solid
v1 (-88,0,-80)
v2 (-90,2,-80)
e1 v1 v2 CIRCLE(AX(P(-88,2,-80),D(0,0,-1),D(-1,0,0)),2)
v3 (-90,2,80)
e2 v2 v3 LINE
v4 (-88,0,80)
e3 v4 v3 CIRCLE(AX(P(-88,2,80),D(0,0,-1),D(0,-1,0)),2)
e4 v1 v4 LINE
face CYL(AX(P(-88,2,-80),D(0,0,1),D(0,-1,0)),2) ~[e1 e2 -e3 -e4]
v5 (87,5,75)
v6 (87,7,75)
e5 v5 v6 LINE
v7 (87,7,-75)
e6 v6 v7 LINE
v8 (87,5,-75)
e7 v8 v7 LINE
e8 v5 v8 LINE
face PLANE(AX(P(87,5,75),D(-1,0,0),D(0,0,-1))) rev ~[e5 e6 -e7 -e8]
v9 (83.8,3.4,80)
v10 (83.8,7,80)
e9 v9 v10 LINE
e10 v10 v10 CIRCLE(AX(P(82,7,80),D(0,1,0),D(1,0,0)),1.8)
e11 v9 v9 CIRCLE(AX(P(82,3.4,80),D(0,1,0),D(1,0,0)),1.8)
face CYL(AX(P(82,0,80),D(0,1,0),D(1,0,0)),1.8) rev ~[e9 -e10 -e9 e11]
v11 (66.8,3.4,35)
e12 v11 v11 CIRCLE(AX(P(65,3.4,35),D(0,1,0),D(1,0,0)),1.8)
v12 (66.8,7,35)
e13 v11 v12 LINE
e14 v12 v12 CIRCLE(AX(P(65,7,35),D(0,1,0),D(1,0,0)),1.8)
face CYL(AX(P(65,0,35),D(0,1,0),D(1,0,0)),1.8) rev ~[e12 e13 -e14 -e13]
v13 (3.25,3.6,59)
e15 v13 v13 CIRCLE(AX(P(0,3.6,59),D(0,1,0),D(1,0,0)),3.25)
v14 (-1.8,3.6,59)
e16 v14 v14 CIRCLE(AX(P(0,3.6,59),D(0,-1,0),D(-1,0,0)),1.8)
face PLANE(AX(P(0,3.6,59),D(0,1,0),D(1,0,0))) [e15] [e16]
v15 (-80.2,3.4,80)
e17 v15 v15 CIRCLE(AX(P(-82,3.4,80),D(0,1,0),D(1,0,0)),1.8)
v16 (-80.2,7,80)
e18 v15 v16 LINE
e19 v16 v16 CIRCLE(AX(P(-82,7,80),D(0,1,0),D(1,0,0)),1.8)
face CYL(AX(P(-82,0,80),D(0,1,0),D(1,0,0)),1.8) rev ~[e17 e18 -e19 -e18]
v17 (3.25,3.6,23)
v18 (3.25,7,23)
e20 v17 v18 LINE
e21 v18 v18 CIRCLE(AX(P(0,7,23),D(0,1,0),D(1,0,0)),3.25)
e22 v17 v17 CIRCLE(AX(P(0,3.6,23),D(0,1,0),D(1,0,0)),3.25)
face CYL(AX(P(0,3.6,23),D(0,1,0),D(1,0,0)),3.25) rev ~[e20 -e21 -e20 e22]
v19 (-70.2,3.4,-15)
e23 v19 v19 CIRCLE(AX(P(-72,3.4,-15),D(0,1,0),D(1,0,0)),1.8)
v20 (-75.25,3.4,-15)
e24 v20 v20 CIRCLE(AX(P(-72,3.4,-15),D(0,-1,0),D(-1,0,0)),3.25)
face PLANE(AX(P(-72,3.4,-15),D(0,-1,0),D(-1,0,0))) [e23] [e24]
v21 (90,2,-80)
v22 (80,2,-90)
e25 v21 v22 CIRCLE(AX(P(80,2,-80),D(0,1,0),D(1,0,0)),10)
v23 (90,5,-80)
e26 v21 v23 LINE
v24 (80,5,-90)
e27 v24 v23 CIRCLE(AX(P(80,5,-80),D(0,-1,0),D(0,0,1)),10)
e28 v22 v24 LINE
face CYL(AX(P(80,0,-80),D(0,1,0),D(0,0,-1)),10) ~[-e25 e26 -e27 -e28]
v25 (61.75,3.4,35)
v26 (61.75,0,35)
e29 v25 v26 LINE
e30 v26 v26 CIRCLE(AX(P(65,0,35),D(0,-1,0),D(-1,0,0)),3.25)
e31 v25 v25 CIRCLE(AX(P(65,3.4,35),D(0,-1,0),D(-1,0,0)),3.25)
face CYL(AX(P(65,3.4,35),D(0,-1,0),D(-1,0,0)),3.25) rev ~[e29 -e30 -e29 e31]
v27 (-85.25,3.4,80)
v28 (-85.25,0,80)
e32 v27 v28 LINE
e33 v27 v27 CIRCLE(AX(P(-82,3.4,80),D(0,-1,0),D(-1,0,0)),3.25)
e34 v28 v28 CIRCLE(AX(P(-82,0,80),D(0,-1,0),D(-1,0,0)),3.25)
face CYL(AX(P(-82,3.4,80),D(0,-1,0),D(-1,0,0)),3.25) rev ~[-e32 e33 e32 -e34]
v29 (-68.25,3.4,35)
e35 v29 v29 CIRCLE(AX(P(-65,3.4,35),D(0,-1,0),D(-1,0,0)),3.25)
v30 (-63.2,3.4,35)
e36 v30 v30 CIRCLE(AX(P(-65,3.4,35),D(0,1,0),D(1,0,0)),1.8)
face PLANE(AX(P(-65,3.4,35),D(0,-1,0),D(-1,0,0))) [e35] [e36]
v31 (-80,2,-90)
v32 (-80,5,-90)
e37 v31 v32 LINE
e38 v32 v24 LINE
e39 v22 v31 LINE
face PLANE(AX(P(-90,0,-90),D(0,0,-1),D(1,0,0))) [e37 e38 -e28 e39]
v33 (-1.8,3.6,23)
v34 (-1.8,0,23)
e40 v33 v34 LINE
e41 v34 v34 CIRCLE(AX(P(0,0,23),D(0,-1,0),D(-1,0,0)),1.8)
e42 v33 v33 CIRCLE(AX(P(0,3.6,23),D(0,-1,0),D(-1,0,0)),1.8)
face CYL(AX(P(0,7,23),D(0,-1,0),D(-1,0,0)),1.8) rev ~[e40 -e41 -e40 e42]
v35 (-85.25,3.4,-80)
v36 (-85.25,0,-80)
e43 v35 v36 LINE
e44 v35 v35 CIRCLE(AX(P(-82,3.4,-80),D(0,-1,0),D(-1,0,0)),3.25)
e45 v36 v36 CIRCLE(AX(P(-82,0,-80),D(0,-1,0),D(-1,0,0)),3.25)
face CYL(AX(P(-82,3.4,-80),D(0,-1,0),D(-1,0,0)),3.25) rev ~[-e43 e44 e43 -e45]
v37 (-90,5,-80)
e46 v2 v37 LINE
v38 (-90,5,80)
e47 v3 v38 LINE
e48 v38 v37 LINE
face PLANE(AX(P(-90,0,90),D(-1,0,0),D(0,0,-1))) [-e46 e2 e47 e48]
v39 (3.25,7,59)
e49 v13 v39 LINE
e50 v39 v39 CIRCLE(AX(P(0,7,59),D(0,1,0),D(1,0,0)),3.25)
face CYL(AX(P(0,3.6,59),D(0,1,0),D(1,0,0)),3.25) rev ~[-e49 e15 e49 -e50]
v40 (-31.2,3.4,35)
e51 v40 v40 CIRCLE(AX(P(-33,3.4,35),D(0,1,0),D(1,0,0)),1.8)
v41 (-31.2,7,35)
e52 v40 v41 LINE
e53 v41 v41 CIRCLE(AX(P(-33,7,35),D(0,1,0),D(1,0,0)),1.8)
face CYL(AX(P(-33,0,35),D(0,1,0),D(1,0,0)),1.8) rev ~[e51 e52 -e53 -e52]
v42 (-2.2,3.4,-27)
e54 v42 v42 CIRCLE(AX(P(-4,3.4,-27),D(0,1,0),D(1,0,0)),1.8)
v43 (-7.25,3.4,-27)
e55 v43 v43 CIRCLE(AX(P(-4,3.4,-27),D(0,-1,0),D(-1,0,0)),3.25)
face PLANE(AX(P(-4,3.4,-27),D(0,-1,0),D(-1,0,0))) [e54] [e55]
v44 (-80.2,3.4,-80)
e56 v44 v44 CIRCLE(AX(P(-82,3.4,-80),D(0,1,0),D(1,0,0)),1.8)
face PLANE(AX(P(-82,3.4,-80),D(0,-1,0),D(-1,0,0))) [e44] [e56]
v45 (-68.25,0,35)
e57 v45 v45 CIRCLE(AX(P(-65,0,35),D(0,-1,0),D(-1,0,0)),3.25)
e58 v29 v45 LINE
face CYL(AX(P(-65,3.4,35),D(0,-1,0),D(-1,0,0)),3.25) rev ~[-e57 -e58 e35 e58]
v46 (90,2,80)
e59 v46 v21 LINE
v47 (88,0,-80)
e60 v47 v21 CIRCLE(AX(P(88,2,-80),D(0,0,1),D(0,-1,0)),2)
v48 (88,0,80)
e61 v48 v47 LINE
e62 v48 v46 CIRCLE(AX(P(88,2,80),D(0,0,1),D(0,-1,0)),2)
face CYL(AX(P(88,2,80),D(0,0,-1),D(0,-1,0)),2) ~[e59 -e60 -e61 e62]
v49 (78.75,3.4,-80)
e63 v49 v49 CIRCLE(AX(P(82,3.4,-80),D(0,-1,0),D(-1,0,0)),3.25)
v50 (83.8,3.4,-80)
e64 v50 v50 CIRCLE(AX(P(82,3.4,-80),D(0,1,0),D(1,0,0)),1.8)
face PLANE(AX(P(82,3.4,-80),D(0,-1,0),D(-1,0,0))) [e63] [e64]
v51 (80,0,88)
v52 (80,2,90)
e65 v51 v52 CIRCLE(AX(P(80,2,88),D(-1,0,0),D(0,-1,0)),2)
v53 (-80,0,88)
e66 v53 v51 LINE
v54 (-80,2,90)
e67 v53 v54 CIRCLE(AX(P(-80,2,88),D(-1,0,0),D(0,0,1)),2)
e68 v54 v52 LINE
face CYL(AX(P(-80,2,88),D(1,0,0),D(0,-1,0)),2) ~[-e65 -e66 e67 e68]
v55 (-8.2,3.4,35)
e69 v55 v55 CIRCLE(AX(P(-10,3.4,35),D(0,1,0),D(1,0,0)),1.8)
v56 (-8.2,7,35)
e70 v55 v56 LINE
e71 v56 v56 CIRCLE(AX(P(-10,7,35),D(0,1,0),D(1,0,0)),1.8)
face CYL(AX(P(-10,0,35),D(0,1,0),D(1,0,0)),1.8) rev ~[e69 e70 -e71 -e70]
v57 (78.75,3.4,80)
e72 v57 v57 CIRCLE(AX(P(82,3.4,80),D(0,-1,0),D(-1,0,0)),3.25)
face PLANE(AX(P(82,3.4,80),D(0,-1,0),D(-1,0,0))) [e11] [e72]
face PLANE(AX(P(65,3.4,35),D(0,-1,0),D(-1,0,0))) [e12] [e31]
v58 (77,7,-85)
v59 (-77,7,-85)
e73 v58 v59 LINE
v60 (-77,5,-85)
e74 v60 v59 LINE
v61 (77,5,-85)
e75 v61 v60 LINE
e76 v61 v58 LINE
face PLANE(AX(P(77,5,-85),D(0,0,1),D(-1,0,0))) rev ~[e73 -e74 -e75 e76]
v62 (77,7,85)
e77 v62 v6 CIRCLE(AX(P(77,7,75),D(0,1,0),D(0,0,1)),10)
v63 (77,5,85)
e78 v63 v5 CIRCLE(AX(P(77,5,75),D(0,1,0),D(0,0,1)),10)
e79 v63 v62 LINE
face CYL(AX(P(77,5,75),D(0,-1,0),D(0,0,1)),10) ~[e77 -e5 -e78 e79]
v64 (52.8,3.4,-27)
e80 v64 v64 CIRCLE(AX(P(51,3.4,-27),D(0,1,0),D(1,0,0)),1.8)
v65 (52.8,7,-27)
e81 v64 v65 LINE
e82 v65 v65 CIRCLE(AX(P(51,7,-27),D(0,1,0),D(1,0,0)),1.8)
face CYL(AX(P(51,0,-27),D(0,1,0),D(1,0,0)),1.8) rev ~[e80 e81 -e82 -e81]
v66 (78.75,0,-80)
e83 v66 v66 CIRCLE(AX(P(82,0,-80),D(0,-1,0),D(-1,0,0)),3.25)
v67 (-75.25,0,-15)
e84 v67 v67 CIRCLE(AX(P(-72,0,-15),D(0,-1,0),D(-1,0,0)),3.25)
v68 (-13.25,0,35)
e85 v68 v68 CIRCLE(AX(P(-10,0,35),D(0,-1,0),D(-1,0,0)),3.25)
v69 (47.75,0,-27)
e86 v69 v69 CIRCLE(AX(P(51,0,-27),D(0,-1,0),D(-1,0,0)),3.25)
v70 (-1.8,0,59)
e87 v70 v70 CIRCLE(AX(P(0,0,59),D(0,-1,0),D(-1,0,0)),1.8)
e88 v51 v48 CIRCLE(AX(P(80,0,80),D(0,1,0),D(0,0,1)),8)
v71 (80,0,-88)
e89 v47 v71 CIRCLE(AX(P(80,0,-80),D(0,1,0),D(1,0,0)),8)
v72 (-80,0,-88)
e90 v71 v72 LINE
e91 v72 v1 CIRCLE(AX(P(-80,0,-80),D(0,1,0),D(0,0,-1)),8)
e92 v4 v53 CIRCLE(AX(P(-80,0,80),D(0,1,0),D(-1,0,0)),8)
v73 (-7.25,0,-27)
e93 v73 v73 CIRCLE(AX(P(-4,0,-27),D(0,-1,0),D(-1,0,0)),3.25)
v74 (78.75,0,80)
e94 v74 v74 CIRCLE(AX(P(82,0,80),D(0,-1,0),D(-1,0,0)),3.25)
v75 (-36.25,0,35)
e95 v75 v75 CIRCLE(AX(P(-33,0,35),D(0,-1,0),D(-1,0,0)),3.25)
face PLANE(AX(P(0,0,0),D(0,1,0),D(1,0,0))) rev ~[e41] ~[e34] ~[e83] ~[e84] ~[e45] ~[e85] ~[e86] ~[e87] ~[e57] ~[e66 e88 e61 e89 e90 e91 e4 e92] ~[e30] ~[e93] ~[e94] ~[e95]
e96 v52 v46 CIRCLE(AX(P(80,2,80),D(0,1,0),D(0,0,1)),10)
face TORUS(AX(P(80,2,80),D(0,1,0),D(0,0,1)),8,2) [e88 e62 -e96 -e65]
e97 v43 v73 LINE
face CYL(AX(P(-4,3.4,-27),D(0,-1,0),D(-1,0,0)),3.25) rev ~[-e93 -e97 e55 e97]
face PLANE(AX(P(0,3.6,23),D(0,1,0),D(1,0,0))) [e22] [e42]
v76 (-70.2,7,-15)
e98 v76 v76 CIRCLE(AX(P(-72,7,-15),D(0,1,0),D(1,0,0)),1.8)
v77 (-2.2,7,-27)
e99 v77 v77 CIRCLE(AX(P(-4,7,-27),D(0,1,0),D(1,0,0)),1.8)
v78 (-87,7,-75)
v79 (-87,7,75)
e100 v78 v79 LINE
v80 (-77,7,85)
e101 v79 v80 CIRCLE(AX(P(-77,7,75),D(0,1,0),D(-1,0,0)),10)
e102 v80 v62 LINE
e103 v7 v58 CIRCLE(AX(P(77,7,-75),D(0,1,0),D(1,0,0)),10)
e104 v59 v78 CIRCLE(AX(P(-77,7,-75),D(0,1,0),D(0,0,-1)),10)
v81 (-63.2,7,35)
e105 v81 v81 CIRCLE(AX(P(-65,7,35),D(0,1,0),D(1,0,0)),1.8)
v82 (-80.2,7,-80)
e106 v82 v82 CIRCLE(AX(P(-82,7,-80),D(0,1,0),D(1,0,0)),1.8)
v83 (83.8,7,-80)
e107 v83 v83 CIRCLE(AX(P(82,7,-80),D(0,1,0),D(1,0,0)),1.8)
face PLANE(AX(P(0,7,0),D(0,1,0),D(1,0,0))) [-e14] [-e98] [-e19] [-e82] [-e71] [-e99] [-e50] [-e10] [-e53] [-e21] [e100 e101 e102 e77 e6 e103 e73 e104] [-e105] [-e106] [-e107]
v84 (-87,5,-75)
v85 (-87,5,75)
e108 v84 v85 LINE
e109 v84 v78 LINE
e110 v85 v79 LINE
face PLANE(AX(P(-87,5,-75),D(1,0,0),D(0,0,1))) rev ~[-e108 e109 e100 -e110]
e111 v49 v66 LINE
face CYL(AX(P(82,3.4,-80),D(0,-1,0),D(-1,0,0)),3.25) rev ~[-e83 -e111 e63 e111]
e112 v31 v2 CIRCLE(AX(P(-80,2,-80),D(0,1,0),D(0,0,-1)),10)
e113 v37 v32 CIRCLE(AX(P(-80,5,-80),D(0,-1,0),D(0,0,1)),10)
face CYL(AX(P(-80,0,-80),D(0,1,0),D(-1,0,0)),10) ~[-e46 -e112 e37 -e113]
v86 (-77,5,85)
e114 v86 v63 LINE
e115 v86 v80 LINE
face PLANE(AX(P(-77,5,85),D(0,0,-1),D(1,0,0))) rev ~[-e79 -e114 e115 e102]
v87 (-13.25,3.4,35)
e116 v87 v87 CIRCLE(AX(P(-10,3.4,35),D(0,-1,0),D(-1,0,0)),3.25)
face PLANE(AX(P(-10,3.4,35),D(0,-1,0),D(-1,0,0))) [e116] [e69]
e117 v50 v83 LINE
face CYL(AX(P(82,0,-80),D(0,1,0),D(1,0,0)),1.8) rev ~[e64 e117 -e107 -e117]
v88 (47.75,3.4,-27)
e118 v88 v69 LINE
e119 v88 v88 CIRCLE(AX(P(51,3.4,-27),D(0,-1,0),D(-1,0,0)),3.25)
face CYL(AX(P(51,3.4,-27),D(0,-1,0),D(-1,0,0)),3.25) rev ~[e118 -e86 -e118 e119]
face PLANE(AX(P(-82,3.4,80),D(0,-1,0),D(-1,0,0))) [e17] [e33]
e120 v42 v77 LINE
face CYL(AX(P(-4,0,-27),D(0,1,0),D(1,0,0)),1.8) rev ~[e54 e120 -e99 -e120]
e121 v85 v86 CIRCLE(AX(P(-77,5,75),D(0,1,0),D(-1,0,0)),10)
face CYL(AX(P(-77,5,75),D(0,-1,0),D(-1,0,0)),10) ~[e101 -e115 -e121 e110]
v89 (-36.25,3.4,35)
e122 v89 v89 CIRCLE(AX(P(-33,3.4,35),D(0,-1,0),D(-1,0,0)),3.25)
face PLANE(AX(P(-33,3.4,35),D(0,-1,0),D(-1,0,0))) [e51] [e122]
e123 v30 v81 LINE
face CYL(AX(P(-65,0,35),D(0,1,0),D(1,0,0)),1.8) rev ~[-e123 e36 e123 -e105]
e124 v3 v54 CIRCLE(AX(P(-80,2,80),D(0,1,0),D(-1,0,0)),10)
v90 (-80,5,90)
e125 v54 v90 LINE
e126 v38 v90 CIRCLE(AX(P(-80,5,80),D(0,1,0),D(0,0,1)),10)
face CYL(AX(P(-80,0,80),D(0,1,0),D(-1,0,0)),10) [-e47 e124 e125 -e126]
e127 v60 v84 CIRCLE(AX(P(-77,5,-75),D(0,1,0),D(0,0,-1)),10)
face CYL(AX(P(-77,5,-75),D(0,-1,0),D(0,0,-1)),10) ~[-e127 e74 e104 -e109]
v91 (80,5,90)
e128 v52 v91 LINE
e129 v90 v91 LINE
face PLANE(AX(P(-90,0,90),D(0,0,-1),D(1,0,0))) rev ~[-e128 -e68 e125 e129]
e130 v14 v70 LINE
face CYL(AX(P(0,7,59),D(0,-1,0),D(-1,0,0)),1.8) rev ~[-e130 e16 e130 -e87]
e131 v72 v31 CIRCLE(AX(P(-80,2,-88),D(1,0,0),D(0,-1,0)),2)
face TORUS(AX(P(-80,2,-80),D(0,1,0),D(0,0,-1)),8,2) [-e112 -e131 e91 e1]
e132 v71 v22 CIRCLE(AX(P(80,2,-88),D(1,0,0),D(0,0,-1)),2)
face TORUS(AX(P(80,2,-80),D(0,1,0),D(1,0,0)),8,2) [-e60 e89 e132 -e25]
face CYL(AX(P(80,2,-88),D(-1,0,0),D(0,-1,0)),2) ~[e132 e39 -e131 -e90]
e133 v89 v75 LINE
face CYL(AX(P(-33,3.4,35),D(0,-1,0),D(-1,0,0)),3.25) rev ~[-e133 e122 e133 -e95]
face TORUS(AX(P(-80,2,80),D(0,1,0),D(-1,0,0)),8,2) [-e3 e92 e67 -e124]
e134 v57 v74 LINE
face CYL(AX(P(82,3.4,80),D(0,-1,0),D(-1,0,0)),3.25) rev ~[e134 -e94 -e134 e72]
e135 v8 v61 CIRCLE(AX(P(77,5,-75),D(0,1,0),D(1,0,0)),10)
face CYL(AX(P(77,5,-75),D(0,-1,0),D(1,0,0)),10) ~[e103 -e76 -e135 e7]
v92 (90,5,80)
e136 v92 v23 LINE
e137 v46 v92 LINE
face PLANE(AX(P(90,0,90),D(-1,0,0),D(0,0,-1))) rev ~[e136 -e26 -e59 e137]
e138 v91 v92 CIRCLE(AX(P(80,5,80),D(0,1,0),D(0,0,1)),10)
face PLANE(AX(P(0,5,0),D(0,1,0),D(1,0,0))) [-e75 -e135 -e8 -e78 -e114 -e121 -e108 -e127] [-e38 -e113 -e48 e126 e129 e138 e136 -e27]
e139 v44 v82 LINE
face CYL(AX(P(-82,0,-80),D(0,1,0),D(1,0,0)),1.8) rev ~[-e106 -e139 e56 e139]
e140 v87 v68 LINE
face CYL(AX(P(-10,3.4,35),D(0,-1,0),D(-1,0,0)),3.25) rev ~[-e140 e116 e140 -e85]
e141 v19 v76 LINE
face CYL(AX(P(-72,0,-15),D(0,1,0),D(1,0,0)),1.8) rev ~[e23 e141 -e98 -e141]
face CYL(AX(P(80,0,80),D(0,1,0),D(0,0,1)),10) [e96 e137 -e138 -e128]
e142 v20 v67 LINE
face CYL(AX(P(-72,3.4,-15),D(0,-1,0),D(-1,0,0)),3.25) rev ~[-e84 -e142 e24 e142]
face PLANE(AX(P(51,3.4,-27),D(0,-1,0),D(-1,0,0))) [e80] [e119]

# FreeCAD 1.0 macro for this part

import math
import FreeCAD as App
import Part
import Sketcher


def edges_at(feature, points):
    """Names of the edges that pass closest to the given points."""
    edges = feature.Shape.Edges
    near = lambda p: min(range(len(edges)), key=lambda i: edges[i].distToShape(Part.Vertex(*p))[0])
    return sorted({f"Edge{near(p) + 1}" for p in points})


def add_polygon(sketch, points):
    """Adds a closed chain of lines whose ends are joined by coincident constraints."""
    first, n = sketch.GeometryCount, len(points)
    for a, b in zip(points, points[1:] + points[:1]):
        sketch.addGeometry(Part.LineSegment(App.Vector(*a, 0), App.Vector(*b, 0)), False)
    for i in range(n):
        sketch.addConstraint(Sketcher.Constraint("Coincident", first + i, 2, first + (i + 1) % n, 1))

doc = App.newDocument("Part")
body = doc.addObject("PartDesign::Body", "Body")

# Sketch on XZ plane
sketch1 = body.newObject("Sketcher::SketchObject", "Sketch")
sketch1.AttachmentSupport = (doc.getObject("XZ_Plane"), [""])
sketch1.MapMode = "FlatFace"
add_polygon(sketch1, [(-90, -90), (-90, 90), (90, 90), (90, -90)])  # lines 0-3
sketch1.addConstraint([
    Sketcher.Constraint("Vertical", 0),
    Sketcher.Constraint("Horizontal", 1),
    Sketcher.Constraint("Vertical", 2),
    Sketcher.Constraint("Horizontal", 3),
    Sketcher.Constraint("Symmetric", 0, 2, 2, 2, -1, 1),
    Sketcher.Constraint("Equal", 3, 0),
    Sketcher.Constraint("DistanceX", 1, 1, 1, 2, 180.0),
])
pad1 = body.newObject("PartDesign::Pad", "Pad")
pad1.Profile = sketch1
pad1.Length = 5
pad1.Reversed = True

# Sketch on XZ plane
sketch2 = body.newObject("Sketcher::SketchObject", "Sketch001")
sketch2.AttachmentSupport = (doc.getObject("XZ_Plane"), [""])
sketch2.MapMode = "FlatFace"
sketch2.AttachmentOffset = App.Placement(App.Vector(0, 0, -5), App.Rotation())
sketch2.addGeometry([
    Part.LineSegment(App.Vector(77, -85, 0), App.Vector(-77, -85, 0)),  # 0
    Part.ArcOfCircle(Part.Circle(App.Vector(-77, -75, 0), App.Vector(0, 0, 1), 10), math.radians(180), math.radians(270)),  # 1
    Part.LineSegment(App.Vector(-87, -75, 0), App.Vector(-87, 75, 0)),  # 2
    Part.ArcOfCircle(Part.Circle(App.Vector(-77, 75, 0), App.Vector(0, 0, 1), 10), math.radians(90), math.radians(180)),  # 3
    Part.LineSegment(App.Vector(-77, 85, 0), App.Vector(77, 85, 0)),  # 4
    Part.ArcOfCircle(Part.Circle(App.Vector(77, 75, 0), App.Vector(0, 0, 1), 10), math.radians(0), math.radians(90)),  # 5
    Part.LineSegment(App.Vector(87, 75, 0), App.Vector(87, -75, 0)),  # 6
    Part.ArcOfCircle(Part.Circle(App.Vector(77, -75, 0), App.Vector(0, 0, 1), 10), math.radians(-90), math.radians(0)),  # 7
], False)
sketch2.addConstraint([
    Sketcher.Constraint("Tangent", 0, 2, 1, 2),
    Sketcher.Constraint("Tangent", 1, 1, 2, 1),
    Sketcher.Constraint("Tangent", 2, 2, 3, 2),
    Sketcher.Constraint("Tangent", 3, 1, 4, 1),
    Sketcher.Constraint("Tangent", 4, 2, 5, 2),
    Sketcher.Constraint("Tangent", 5, 1, 6, 1),
    Sketcher.Constraint("Tangent", 6, 2, 7, 2),
    Sketcher.Constraint("Tangent", 7, 1, 0, 1),
    Sketcher.Constraint("Horizontal", 0),
    Sketcher.Constraint("Vertical", 2),
    Sketcher.Constraint("Horizontal", 4),
    Sketcher.Constraint("Vertical", 6),
    Sketcher.Constraint("Equal", 1, 3),
    Sketcher.Constraint("Equal", 3, 5),
    Sketcher.Constraint("Equal", 5, 7),
    Sketcher.Constraint("Symmetric", 1, 3, 5, 3, -1, 1),
    Sketcher.Constraint("Radius", 1, 10.0),
    Sketcher.Constraint("DistanceX", 0, 2, 0, 1, 154.0),
    Sketcher.Constraint("DistanceY", 2, 1, 2, 2, 150.0),
])
pad2 = body.newObject("PartDesign::Pad", "Pad001")
pad2.Profile = sketch2
pad2.Length = 2
pad2.Reversed = True

# Sketch on XZ plane
sketch3 = body.newObject("Sketcher::SketchObject", "Sketch002")
sketch3.AttachmentSupport = (doc.getObject("XZ_Plane"), [""])
sketch3.MapMode = "FlatFace"
sketch3.AttachmentOffset = App.Placement(App.Vector(0, 0, -7), App.Rotation())
sketch3.addGeometry([
    Part.Circle(App.Vector(0, 23, 0), App.Vector(0, 0, 1), 1.8),
    Part.Circle(App.Vector(0, 59, 0), App.Vector(0, 0, 1), 1.8),
], False)
sketch3.addConstraint([
    Sketcher.Constraint("Equal", 0, 1),
    Sketcher.Constraint("PointOnObject", 0, 3, -2),
    Sketcher.Constraint("PointOnObject", 1, 3, -2),
    Sketcher.Constraint("Diameter", 0, 3.6),
    Sketcher.Constraint("DistanceY", -1, 1, 0, 3, 23.0),
    Sketcher.Constraint("DistanceY", -1, 1, 1, 3, 59.0),
])
doc.recompute()
hole = body.newObject("PartDesign::Hole", "Hole")
hole.Profile = sketch3
hole.ThreadType = "None"
hole.Diameter = 3.6
hole.DepthType = "Dimension"
hole.Depth = 9.1
hole.DrillPoint = "Angled"
hole.DrillPointAngle = 118
hole.HoleCutType = "Counterbore"
hole.HoleCutDiameter = 6.5
hole.HoleCutDepth = 3.4
hole.Reversed = True

# Sketch on XZ plane
sketch4 = body.newObject("Sketcher::SketchObject", "Sketch003")
sketch4.AttachmentSupport = (doc.getObject("XZ_Plane"), [""])
sketch4.MapMode = "FlatFace"
sketch4.addGeometry([
    Part.Circle(App.Vector(82, -80, 0), App.Vector(0, 0, 1), 1.8),
    Part.Circle(App.Vector(-82, -80, 0), App.Vector(0, 0, 1), 1.8),
    Part.Circle(App.Vector(-82, 80, 0), App.Vector(0, 0, 1), 1.8),
    Part.Circle(App.Vector(82, 80, 0), App.Vector(0, 0, 1), 1.8),
], False)
sketch4.addConstraint([
    Sketcher.Constraint("Equal", 0, 1),
    Sketcher.Constraint("Equal", 1, 2),
    Sketcher.Constraint("Equal", 2, 3),
    Sketcher.Constraint("Symmetric", 0, 3, 2, 3, -1, 1),
    Sketcher.Constraint("Symmetric", 1, 3, 3, 3, -1, 1),
    Sketcher.Constraint("Symmetric", 0, 3, 1, 3, -2),
    Sketcher.Constraint("Diameter", 0, 3.6),
    Sketcher.Constraint("DistanceX", -1, 1, 0, 3, 82.0),
    Sketcher.Constraint("DistanceY", 0, 3, -1, 1, 80.0),
])
doc.recompute()
hole2 = body.newObject("PartDesign::Hole", "Hole001")
hole2.Profile = sketch4
hole2.ThreadType = "None"
hole2.Diameter = 3.6
hole2.DepthType = "Dimension"
hole2.Depth = 9.1
hole2.DrillPoint = "Angled"
hole2.DrillPointAngle = 118
hole2.HoleCutType = "Counterbore"
hole2.HoleCutDiameter = 6.5
hole2.HoleCutDepth = 3.4
doc.recompute()

fillet = body.newObject("PartDesign::Fillet", "Fillet")
fillet.Base = (hole2, edges_at(hole2, [
    (90, 2.5, -90),
    (90, 2.5, 90),
    (-90, 2.5, 90),
    (-90, 2.5, -90),
]))
fillet.Radius = 10
doc.recompute()

fillet2 = body.newObject("PartDesign::Fillet", "Fillet001")
fillet2.Base = (fillet, edges_at(fillet, [
    (90, 0, 0),
    (0, 0, -90),
    (0, 0, 90),
    (-90, 0, 0),
    (87.071, 0, -87.071),
    (-87.071, 0, -87.071),
    (-87.071, 0, 87.071),
    (87.071, 0, 87.071),
]))
fillet2.Radius = 2

# Sketch on XZ plane
sketch5 = body.newObject("Sketcher::SketchObject", "Sketch004")
sketch5.AttachmentSupport = (doc.getObject("XZ_Plane"), [""])
sketch5.MapMode = "FlatFace"
sketch5.addGeometry([
    Part.Circle(App.Vector(51, -27, 0), App.Vector(0, 0, 1), 1.8),  # 0
    Part.Circle(App.Vector(-4, -27, 0), App.Vector(0, 0, 1), 1.8),  # 1
    Part.Circle(App.Vector(65, 35, 0), App.Vector(0, 0, 1), 1.8),  # 2
    Part.Circle(App.Vector(-10, 35, 0), App.Vector(0, 0, 1), 1.8),  # 3
    Part.Circle(App.Vector(-33, 35, 0), App.Vector(0, 0, 1), 1.8),  # 4
    Part.Circle(App.Vector(-65, 35, 0), App.Vector(0, 0, 1), 1.8),  # 5
    Part.Circle(App.Vector(-72, -15, 0), App.Vector(0, 0, 1), 1.8),  # 6
], False)
sketch5.addConstraint([
    Sketcher.Constraint("Equal", 0, 1),
    Sketcher.Constraint("Equal", 1, 2),
    Sketcher.Constraint("Equal", 2, 3),
    Sketcher.Constraint("Equal", 3, 4),
    Sketcher.Constraint("Equal", 4, 5),
    Sketcher.Constraint("Equal", 5, 6),
    Sketcher.Constraint("Symmetric", 2, 3, 5, 3, -2),
    Sketcher.Constraint("Horizontal", 0, 3, 1, 3),
    Sketcher.Constraint("Horizontal", 2, 3, 3, 3),
    Sketcher.Constraint("Horizontal", 3, 3, 4, 3),
    Sketcher.Constraint("Diameter", 0, 3.6),
    Sketcher.Constraint("DistanceX", -1, 1, 0, 3, 51.0),
    Sketcher.Constraint("DistanceY", 0, 3, -1, 1, 27.0),
    Sketcher.Constraint("DistanceX", 1, 3, -1, 1, 4.0),
    Sketcher.Constraint("DistanceX", -1, 1, 2, 3, 65.0),
    Sketcher.Constraint("DistanceY", -1, 1, 2, 3, 35.0),
    Sketcher.Constraint("DistanceX", 3, 3, -1, 1, 10.0),
    Sketcher.Constraint("DistanceX", 4, 3, -1, 1, 33.0),
    Sketcher.Constraint("DistanceX", 6, 3, -1, 1, 72.0),
    Sketcher.Constraint("DistanceY", 6, 3, -1, 1, 15.0),
])
doc.recompute()
hole3 = body.newObject("PartDesign::Hole", "Hole002")
hole3.Profile = sketch5
hole3.ThreadType = "None"
hole3.Diameter = 3.6
hole3.DepthType = "ThroughAll"
hole3.HoleCutType = "Counterbore"
hole3.HoleCutDiameter = 6.5
hole3.HoleCutDepth = 3.4

doc.recompute()
